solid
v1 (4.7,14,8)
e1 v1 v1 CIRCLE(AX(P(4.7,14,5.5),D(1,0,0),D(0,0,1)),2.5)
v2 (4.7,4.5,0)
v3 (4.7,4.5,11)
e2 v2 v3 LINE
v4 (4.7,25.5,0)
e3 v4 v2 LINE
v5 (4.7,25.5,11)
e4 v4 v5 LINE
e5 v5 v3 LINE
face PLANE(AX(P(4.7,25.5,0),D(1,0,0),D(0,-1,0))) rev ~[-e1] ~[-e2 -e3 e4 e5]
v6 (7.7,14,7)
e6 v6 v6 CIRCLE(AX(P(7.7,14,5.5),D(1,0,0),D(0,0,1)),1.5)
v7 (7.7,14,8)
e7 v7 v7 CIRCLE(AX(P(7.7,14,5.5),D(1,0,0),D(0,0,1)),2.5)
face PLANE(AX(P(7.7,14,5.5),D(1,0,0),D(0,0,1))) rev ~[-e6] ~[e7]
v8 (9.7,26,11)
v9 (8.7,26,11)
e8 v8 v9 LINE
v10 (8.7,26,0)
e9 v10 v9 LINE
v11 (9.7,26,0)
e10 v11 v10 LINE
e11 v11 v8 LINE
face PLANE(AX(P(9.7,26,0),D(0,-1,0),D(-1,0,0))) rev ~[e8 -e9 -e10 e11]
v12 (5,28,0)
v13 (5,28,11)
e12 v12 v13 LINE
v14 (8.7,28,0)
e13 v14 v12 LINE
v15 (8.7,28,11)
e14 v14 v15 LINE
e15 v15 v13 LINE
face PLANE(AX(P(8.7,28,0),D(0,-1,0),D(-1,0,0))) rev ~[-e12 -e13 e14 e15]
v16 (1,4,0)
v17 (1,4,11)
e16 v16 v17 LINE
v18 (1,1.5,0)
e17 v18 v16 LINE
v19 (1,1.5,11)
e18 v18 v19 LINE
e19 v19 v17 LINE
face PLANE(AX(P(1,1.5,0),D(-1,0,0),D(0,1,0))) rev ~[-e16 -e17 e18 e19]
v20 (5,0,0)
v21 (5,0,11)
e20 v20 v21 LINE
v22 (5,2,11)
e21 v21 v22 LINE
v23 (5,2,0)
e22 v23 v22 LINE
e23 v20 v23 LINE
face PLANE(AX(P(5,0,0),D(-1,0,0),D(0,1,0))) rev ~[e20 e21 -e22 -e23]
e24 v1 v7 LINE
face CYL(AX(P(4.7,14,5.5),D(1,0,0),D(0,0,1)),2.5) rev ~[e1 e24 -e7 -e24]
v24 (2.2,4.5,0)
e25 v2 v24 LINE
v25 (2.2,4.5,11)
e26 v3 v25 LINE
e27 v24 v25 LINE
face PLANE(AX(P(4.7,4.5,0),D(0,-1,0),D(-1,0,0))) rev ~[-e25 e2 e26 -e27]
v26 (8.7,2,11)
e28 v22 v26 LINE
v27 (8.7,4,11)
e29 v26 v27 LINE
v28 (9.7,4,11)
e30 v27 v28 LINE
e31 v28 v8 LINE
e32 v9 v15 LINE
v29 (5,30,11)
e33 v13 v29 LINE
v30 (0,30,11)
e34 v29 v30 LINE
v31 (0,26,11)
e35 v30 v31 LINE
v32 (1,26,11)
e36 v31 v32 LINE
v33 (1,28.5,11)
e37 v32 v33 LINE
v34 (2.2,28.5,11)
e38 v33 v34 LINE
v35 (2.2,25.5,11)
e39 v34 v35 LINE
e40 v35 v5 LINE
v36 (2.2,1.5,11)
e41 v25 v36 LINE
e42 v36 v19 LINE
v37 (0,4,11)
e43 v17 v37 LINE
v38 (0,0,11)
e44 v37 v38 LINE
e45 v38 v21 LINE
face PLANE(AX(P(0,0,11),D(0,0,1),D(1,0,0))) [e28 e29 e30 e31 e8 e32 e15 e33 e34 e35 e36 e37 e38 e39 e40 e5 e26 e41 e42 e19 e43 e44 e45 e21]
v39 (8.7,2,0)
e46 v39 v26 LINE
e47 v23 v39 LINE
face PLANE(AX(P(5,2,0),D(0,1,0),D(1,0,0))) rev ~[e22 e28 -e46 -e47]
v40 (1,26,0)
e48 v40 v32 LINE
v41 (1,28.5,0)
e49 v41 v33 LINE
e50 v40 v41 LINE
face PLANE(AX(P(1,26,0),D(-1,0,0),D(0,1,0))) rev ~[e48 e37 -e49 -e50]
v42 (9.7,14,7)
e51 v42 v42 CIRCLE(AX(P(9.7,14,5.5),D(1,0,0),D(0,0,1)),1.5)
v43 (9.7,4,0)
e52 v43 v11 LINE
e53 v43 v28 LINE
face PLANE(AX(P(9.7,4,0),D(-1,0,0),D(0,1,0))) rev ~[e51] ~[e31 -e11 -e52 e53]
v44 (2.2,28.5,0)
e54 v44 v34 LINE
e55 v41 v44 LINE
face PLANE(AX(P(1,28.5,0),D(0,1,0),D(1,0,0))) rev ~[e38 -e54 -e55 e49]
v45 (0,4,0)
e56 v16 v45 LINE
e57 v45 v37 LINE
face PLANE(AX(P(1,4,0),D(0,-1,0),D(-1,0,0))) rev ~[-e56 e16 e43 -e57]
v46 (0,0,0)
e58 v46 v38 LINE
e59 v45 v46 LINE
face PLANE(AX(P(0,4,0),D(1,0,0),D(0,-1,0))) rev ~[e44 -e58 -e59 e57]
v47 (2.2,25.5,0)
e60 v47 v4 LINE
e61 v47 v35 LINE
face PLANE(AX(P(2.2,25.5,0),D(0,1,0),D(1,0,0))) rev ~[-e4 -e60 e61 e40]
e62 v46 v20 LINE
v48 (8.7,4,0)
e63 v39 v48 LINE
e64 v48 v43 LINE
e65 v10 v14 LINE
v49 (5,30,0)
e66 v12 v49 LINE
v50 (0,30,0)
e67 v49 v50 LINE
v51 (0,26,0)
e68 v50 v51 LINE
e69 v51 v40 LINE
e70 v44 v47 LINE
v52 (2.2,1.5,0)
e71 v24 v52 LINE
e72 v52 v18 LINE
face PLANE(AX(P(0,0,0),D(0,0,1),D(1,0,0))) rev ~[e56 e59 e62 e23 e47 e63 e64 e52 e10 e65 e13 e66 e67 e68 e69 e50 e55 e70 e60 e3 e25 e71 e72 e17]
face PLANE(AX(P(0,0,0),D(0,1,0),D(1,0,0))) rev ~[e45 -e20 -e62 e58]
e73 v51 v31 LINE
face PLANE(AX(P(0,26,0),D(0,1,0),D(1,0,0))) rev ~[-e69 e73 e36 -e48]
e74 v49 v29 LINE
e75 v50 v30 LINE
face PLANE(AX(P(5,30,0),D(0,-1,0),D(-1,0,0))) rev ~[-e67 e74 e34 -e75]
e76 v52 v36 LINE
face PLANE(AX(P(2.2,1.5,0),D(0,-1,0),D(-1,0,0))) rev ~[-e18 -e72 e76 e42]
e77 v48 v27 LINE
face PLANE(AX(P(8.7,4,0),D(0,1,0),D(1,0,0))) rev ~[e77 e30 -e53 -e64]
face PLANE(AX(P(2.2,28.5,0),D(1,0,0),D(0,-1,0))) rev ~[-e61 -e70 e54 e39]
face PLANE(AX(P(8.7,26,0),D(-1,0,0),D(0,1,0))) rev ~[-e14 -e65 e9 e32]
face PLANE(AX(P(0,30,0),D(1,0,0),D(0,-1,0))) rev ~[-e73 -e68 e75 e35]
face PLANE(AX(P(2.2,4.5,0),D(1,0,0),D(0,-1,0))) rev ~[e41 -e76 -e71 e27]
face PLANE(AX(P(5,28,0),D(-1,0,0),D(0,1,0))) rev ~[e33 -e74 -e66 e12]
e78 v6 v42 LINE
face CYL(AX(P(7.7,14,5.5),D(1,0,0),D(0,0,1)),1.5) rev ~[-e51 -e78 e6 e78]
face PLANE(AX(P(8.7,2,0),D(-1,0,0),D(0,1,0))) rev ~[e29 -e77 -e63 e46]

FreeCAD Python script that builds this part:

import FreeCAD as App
import Part
import Sketcher

V = App.Vector

doc = App.newDocument("Part")
body = doc.addObject("PartDesign::Body", "Body")

# Sketch on XY plane
sketch1 = body.newObject("Sketcher::SketchObject", "Sketch")
sketch1.AttachmentSupport = (doc.getObject("XY_Plane"), [""])
sketch1.MapMode = "FlatFace"
sketch1.addGeometry(Part.LineSegment(V(1, 4, 0), V(0, 4, 0)), False)
sketch1.addGeometry(Part.LineSegment(V(0, 4, 0), V(0, 0, 0)), False)
sketch1.addGeometry(Part.LineSegment(V(0, 0, 0), V(5, 0, 0)), False)
sketch1.addGeometry(Part.LineSegment(V(5, 0, 0), V(5, 2, 0)), False)
sketch1.addGeometry(Part.LineSegment(V(5, 2, 0), V(8.7, 2, 0)), False)
sketch1.addGeometry(Part.LineSegment(V(8.7, 2, 0), V(8.7, 4, 0)), False)
sketch1.addGeometry(Part.LineSegment(V(8.7, 4, 0), V(9.7, 4, 0)), False)
sketch1.addGeometry(Part.LineSegment(V(9.7, 4, 0), V(9.7, 26, 0)), False)
sketch1.addGeometry(Part.LineSegment(V(9.7, 26, 0), V(8.7, 26, 0)), False)
sketch1.addGeometry(Part.LineSegment(V(8.7, 26, 0), V(8.7, 28, 0)), False)
sketch1.addGeometry(Part.LineSegment(V(8.7, 28, 0), V(5, 28, 0)), False)
sketch1.addGeometry(Part.LineSegment(V(5, 28, 0), V(5, 30, 0)), False)
sketch1.addGeometry(Part.LineSegment(V(5, 30, 0), V(0, 30, 0)), False)
sketch1.addGeometry(Part.LineSegment(V(0, 30, 0), V(0, 26, 0)), False)
sketch1.addGeometry(Part.LineSegment(V(0, 26, 0), V(1, 26, 0)), False)
sketch1.addGeometry(Part.LineSegment(V(1, 26, 0), V(1, 28.5, 0)), False)
sketch1.addGeometry(Part.LineSegment(V(1, 28.5, 0), V(2.2, 28.5, 0)), False)
sketch1.addGeometry(Part.LineSegment(V(2.2, 28.5, 0), V(2.2, 25.5, 0)), False)
sketch1.addGeometry(Part.LineSegment(V(2.2, 25.5, 0), V(4.7, 25.5, 0)), False)
sketch1.addGeometry(Part.LineSegment(V(4.7, 25.5, 0), V(4.7, 4.5, 0)), False)
sketch1.addGeometry(Part.LineSegment(V(4.7, 4.5, 0), V(2.2, 4.5, 0)), False)
sketch1.addGeometry(Part.LineSegment(V(2.2, 4.5, 0), V(2.2, 1.5, 0)), False)
sketch1.addGeometry(Part.LineSegment(V(2.2, 1.5, 0), V(1, 1.5, 0)), False)
sketch1.addGeometry(Part.LineSegment(V(1, 1.5, 0), V(1, 4, 0)), False)
sketch1.addConstraint(Sketcher.Constraint("Coincident", 0, 2, 1, 1))
sketch1.addConstraint(Sketcher.Constraint("Coincident", 1, 2, 2, 1))
sketch1.addConstraint(Sketcher.Constraint("Coincident", 2, 2, 3, 1))
sketch1.addConstraint(Sketcher.Constraint("Coincident", 3, 2, 4, 1))
sketch1.addConstraint(Sketcher.Constraint("Coincident", 4, 2, 5, 1))
sketch1.addConstraint(Sketcher.Constraint("Coincident", 5, 2, 6, 1))
sketch1.addConstraint(Sketcher.Constraint("Coincident", 6, 2, 7, 1))
sketch1.addConstraint(Sketcher.Constraint("Coincident", 7, 2, 8, 1))
sketch1.addConstraint(Sketcher.Constraint("Coincident", 8, 2, 9, 1))
sketch1.addConstraint(Sketcher.Constraint("Coincident", 9, 2, 10, 1))
sketch1.addConstraint(Sketcher.Constraint("Coincident", 10, 2, 11, 1))
sketch1.addConstraint(Sketcher.Constraint("Coincident", 11, 2, 12, 1))
sketch1.addConstraint(Sketcher.Constraint("Coincident", 12, 2, 13, 1))
sketch1.addConstraint(Sketcher.Constraint("Coincident", 13, 2, 14, 1))
sketch1.addConstraint(Sketcher.Constraint("Coincident", 14, 2, 15, 1))
sketch1.addConstraint(Sketcher.Constraint("Coincident", 15, 2, 16, 1))
sketch1.addConstraint(Sketcher.Constraint("Coincident", 16, 2, 17, 1))
sketch1.addConstraint(Sketcher.Constraint("Coincident", 17, 2, 18, 1))
sketch1.addConstraint(Sketcher.Constraint("Coincident", 18, 2, 19, 1))
sketch1.addConstraint(Sketcher.Constraint("Coincident", 19, 2, 20, 1))
sketch1.addConstraint(Sketcher.Constraint("Coincident", 20, 2, 21, 1))
sketch1.addConstraint(Sketcher.Constraint("Coincident", 21, 2, 22, 1))
sketch1.addConstraint(Sketcher.Constraint("Coincident", 22, 2, 23, 1))
sketch1.addConstraint(Sketcher.Constraint("Coincident", 23, 2, 0, 1))
sketch1.addConstraint(Sketcher.Constraint("Horizontal", 0))
sketch1.addConstraint(Sketcher.Constraint("Vertical", 1))
sketch1.addConstraint(Sketcher.Constraint("Horizontal", 2))
sketch1.addConstraint(Sketcher.Constraint("Vertical", 3))
sketch1.addConstraint(Sketcher.Constraint("Horizontal", 4))
sketch1.addConstraint(Sketcher.Constraint("Vertical", 5))
sketch1.addConstraint(Sketcher.Constraint("Horizontal", 6))
sketch1.addConstraint(Sketcher.Constraint("Vertical", 7))
sketch1.addConstraint(Sketcher.Constraint("Horizontal", 8))
sketch1.addConstraint(Sketcher.Constraint("Vertical", 9))
sketch1.addConstraint(Sketcher.Constraint("Horizontal", 10))
sketch1.addConstraint(Sketcher.Constraint("Vertical", 11))
sketch1.addConstraint(Sketcher.Constraint("Horizontal", 12))
sketch1.addConstraint(Sketcher.Constraint("Vertical", 13))
sketch1.addConstraint(Sketcher.Constraint("Horizontal", 14))
sketch1.addConstraint(Sketcher.Constraint("Vertical", 15))
sketch1.addConstraint(Sketcher.Constraint("Horizontal", 16))
sketch1.addConstraint(Sketcher.Constraint("Vertical", 17))
sketch1.addConstraint(Sketcher.Constraint("Horizontal", 18))
sketch1.addConstraint(Sketcher.Constraint("Vertical", 19))
sketch1.addConstraint(Sketcher.Constraint("Horizontal", 20))
sketch1.addConstraint(Sketcher.Constraint("Vertical", 21))
sketch1.addConstraint(Sketcher.Constraint("Horizontal", 22))
sketch1.addConstraint(Sketcher.Constraint("Vertical", 23))
sketch1.addConstraint(Sketcher.Constraint("Coincident", 1, 2, -1, 1))
sketch1.addConstraint(Sketcher.Constraint("PointOnObject", 12, 2, -2))
sketch1.addConstraint(Sketcher.Constraint("Horizontal", 0, 2, 5, 2))
sketch1.addConstraint(Sketcher.Constraint("Horizontal", 8, 2, 13, 2))
sketch1.addConstraint(Sketcher.Constraint("Vertical", 5, 2, 8, 2))
sketch1.addConstraint(Sketcher.Constraint("Vertical", 3, 2, 10, 2))
sketch1.addConstraint(Sketcher.Constraint("Vertical", 17, 2, 20, 2))
sketch1.addConstraint(Sketcher.Constraint("Vertical", 15, 2, 22, 2))
sketch1.addConstraint(Sketcher.Constraint("Equal", 0, 6))
sketch1.addConstraint(Sketcher.Constraint("Equal", 3, 5))
sketch1.addConstraint(Sketcher.Constraint("Equal", 5, 9))
sketch1.addConstraint(Sketcher.Constraint("Equal", 9, 11))
sketch1.addConstraint(Sketcher.Constraint("Equal", 20, 15))
sketch1.addConstraint(Sketcher.Constraint("Equal", 17, 21))
sketch1.addConstraint(Sketcher.Constraint("Equal", 15, 23))
sketch1.addConstraint(Sketcher.Constraint("DistanceX", 0, 2, 0, 1, 1.0))
sketch1.addConstraint(Sketcher.Constraint("DistanceX", 2, 1, 2, 2, 5.0))
sketch1.addConstraint(Sketcher.Constraint("DistanceY", 1, 2, 1, 1, 4.0))
sketch1.addConstraint(Sketcher.Constraint("DistanceY", 19, 2, 19, 1, 21.0))
sketch1.addConstraint(Sketcher.Constraint("DistanceX", 16, 1, 16, 2, 1.2))
sketch1.addConstraint(Sketcher.Constraint("DistanceX", 18, 1, 18, 2, 2.5))
sketch1.addConstraint(Sketcher.Constraint("DistanceY", -1, 1, 11, 2, 30.0))
sketch1.addConstraint(Sketcher.Constraint("DistanceX", 18, 2, 8, 2, 4.0))
pad1 = body.newObject("PartDesign::Pad", "Pad")
pad1.Profile = sketch1
pad1.Length = 11

# Sketch on YZ plane
sketch2 = body.newObject("Sketcher::SketchObject", "Sketch001")
sketch2.AttachmentSupport = (doc.getObject("YZ_Plane"), [""])
sketch2.MapMode = "FlatFace"
sketch2.AttachmentOffset = App.Placement(V(0, 0, 4.7), App.Rotation())
sketch2.addGeometry(Part.Circle(V(14, 5.5, 0), V(0, 0, 1), 1.5), False)
sketch2.addConstraint(Sketcher.Constraint("Diameter", 0, 3.0))
sketch2.addConstraint(Sketcher.Constraint("DistanceX", -1, 1, 0, 3, 14.0))
sketch2.addConstraint(Sketcher.Constraint("DistanceY", -1, 1, 0, 3, 5.5))
doc.recompute()
hole = body.newObject("PartDesign::Hole", "Hole")
hole.Profile = sketch2
hole.ThreadType = "None"
hole.Diameter = 3
hole.DepthType = "Dimension"
hole.Depth = 5
hole.DrillPoint = "Flat"
hole.HoleCutType = "Counterbore"
hole.HoleCutDiameter = 5
hole.HoleCutDepth = 3
hole.Reversed = True

doc.recompute()
